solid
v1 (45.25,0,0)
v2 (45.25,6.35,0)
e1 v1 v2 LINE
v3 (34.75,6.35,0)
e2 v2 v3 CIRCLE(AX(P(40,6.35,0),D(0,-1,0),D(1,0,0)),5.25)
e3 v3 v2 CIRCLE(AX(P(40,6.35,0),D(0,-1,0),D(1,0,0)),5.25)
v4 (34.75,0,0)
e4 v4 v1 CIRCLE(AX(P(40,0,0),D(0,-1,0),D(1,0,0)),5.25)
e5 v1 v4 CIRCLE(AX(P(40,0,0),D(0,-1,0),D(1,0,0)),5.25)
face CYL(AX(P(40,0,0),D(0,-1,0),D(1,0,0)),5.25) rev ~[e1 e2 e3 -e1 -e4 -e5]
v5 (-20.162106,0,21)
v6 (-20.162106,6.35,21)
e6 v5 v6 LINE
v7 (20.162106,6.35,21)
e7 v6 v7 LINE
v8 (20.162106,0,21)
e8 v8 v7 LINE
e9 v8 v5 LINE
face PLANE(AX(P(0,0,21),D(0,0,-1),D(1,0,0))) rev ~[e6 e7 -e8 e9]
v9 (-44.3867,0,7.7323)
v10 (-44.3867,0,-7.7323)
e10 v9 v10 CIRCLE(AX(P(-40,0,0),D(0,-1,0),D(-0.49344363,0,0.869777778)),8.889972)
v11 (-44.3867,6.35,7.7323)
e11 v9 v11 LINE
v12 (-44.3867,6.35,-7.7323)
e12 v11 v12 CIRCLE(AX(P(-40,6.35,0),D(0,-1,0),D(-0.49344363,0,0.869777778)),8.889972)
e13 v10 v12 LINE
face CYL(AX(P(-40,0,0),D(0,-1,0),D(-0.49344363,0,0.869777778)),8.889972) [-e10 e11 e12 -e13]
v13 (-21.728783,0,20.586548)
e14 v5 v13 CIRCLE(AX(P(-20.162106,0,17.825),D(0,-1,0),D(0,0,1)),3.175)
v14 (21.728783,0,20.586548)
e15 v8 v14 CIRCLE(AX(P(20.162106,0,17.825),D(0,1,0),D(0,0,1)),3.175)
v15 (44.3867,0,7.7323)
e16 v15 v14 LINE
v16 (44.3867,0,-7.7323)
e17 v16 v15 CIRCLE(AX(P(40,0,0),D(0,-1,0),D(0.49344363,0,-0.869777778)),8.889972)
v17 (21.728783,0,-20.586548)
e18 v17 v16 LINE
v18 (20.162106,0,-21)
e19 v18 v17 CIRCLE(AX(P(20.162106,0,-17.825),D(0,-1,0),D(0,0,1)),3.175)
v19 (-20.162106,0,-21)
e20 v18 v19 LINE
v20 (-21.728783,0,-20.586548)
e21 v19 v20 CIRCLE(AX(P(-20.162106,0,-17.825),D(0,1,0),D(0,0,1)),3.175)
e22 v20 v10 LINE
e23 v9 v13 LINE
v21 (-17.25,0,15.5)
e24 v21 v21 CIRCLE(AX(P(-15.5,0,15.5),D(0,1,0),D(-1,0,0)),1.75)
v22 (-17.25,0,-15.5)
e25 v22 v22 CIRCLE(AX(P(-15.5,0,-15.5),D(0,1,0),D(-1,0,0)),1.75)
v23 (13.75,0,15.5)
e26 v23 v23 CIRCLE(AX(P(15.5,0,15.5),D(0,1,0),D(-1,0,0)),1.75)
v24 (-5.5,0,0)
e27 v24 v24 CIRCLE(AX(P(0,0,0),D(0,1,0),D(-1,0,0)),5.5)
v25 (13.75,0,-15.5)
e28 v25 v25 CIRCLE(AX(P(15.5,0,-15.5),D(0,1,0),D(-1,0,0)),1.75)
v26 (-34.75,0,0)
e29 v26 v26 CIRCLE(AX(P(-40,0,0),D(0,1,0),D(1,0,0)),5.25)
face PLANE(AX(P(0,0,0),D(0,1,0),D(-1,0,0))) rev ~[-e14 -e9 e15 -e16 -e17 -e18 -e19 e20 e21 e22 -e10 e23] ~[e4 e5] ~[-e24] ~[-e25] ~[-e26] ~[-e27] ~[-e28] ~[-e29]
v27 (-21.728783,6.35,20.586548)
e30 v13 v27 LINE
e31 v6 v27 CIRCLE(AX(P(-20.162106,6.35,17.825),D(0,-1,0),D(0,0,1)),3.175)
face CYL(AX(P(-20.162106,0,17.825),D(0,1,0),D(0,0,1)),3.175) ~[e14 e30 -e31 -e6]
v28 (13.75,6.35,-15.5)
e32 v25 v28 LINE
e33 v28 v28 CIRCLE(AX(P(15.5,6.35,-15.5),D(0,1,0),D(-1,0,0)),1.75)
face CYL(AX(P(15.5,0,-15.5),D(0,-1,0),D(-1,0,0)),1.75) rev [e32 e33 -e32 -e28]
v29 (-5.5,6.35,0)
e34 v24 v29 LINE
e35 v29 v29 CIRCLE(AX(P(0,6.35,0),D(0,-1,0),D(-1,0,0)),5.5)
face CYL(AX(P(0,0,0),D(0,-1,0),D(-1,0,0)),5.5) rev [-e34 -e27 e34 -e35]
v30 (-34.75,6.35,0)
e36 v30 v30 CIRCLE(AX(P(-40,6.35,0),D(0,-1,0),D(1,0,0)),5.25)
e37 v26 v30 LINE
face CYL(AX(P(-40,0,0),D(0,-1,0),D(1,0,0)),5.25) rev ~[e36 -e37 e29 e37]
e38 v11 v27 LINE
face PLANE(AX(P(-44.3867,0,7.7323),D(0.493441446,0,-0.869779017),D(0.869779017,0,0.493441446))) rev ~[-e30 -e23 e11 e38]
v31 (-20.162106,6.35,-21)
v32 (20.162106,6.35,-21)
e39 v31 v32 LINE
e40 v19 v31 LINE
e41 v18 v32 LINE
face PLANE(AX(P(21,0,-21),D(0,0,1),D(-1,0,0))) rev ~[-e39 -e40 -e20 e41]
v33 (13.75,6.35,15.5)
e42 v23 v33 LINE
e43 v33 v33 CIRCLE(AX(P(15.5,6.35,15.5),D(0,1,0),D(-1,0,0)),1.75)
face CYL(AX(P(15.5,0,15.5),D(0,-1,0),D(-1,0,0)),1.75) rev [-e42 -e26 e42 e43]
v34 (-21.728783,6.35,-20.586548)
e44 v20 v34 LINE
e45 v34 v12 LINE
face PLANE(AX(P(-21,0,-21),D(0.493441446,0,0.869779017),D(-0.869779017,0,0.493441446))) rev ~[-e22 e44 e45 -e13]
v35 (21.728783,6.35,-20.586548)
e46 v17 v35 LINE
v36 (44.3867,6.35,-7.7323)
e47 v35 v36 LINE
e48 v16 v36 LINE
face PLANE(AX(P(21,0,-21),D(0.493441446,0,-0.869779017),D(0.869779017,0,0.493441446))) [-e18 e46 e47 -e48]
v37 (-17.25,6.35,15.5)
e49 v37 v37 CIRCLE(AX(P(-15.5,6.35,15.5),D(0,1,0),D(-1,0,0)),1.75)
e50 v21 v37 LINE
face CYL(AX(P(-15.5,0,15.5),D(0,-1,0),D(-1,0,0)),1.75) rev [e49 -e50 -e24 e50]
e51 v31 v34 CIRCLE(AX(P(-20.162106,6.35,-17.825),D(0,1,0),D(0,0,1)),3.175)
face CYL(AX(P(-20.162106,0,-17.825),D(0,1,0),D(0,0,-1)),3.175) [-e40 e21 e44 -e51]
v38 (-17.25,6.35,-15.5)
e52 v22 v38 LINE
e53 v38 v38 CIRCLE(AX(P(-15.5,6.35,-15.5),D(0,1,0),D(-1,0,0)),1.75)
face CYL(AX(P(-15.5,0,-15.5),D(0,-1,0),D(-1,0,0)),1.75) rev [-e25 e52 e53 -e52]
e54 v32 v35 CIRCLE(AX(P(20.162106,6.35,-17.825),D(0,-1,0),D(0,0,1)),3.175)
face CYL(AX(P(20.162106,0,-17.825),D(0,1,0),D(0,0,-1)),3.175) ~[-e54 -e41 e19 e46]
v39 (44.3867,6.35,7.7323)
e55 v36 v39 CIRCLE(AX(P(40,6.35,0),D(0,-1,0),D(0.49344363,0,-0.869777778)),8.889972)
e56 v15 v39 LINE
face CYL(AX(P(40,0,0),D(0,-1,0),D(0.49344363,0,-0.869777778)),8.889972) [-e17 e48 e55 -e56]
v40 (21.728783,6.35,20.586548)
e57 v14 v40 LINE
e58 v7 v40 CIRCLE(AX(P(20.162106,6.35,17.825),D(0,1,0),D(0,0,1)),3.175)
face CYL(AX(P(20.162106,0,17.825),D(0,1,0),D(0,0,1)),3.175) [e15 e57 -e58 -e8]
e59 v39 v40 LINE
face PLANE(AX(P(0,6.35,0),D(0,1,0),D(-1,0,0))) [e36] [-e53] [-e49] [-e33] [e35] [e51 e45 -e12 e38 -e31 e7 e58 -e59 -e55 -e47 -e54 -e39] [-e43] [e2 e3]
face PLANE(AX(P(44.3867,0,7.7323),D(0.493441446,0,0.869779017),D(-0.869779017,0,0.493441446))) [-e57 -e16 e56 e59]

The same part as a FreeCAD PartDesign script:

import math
import FreeCAD as App
import Part
import Sketcher
from FreeCAD import Vector


def edges_at(feature, points):
    """Names of the edges that pass closest to the given points."""
    edges = feature.Shape.Edges
    near = lambda p: min(range(len(edges)), key=lambda i: edges[i].distToShape(Part.Vertex(*p))[0])
    return sorted({f"Edge{near(p) + 1}" for p in points})


def add_polygon(sketch, points):
    """Adds a closed chain of lines whose ends are joined by coincident constraints."""
    first, n = sketch.GeometryCount, len(points)
    for a, b in zip(points, points[1:] + points[:1]):
        sketch.addGeometry(Part.LineSegment(App.Vector(*a, 0), App.Vector(*b, 0)), False)
    for i in range(n):
        sketch.addConstraint(Sketcher.Constraint("Coincident", first + i, 2, first + (i + 1) % n, 1))

doc = App.newDocument("Part")
body = doc.addObject("PartDesign::Body", "Body")

sketch1 = body.newObject("Sketcher::SketchObject", "Sketch")
sketch1.AttachmentSupport = (doc.getObject("XZ_Plane"), [""])
sketch1.MapMode = "FlatFace"
add_polygon(sketch1, [(21, -21), (-21, -21), (-21, 21), (21, 21)])
sketch1.addGeometry(Part.Circle(Vector(0, 0, 0), Vector(0, 0, 1), 5.5), False)
sketch1.addGeometry(Part.Circle(Vector(15.5, -15.5, 0), Vector(0, 0, 1), 1.75), False)
sketch1.addGeometry(Part.Circle(Vector(15.5, 15.5, 0), Vector(0, 0, 1), 1.75), False)
sketch1.addGeometry(Part.Circle(Vector(-15.5, -15.5, 0), Vector(0, 0, 1), 1.75), False)
sketch1.addGeometry(Part.Circle(Vector(-15.5, 15.5, 0), Vector(0, 0, 1), 1.75), False)
sketch1.addConstraint([
    Sketcher.Constraint("Horizontal", 0),
    Sketcher.Constraint("Vertical", 1),
    Sketcher.Constraint("Horizontal", 2),
    Sketcher.Constraint("Vertical", 3),
    Sketcher.Constraint("Coincident", 4, 3, -1, 1),
    Sketcher.Constraint("Equal", 5, 6),
    Sketcher.Constraint("Equal", 6, 7),
    Sketcher.Constraint("Equal", 7, 8),
    Sketcher.Constraint("Symmetric", 6, 3, 7, 3, -1, 1),
    Sketcher.Constraint("Symmetric", 5, 3, 8, 3, -1, 1),
    Sketcher.Constraint("Symmetric", 0, 2, 2, 2, -1, 1),
    Sketcher.Constraint("Symmetric", 5, 3, 7, 3, -2),
    Sketcher.Constraint("Equal", 2, 1),
    Sketcher.Constraint("Diameter", 4, 11.0),
    Sketcher.Constraint("Diameter", 5, 3.5),
    Sketcher.Constraint("DistanceX", 0, 2, 0, 1, 42.0),
    Sketcher.Constraint("DistanceY", 5, 3, 6, 3, 31.0),
    Sketcher.Constraint("DistanceX", 7, 3, 5, 3, 31.0),
])
pad1 = body.newObject("PartDesign::Pad", "Pad")
pad1.Profile = sketch1
pad1.Length = 6.35
pad1.Reversed = True

sketch2 = body.newObject("Sketcher::SketchObject", "Sketch001")
sketch2.AttachmentSupport = (doc.getObject("XZ_Plane"), [""])
sketch2.MapMode = "FlatFace"
sketch2.addGeometry([
    Part.LineSegment(Vector(21, 21, 0), Vector(21, 0, 0)),
    Part.LineSegment(Vector(21, 0, 0), Vector(21, -21, 0)),
    Part.LineSegment(Vector(21, -21, 0), Vector(44.3867, -7.7323, 0)),
    Part.ArcOfCircle(Part.Circle(Vector(40, 0, 0), Vector(0, 0, 1), 8.889972), math.radians(-60.432826), math.radians(60.432826)),
    Part.LineSegment(Vector(44.3867, 7.7323, 0), Vector(21, 21, 0)),
    Part.Circle(Vector(40, 0, 0), Vector(0, 0, 1), 5.25),
    Part.LineSegment(Vector(-21, -21, 0), Vector(-21, 0, 0)),
    Part.LineSegment(Vector(-21, 0, 0), Vector(-21, 21, 0)),
    Part.LineSegment(Vector(-21, 21, 0), Vector(-44.3867, 7.7323, 0)),
    Part.ArcOfCircle(Part.Circle(Vector(-40, 0, 0), Vector(0, 0, 1), 8.889972), math.radians(119.567174), math.radians(240.432826)),
    Part.LineSegment(Vector(-44.3867, -7.7323, 0), Vector(-21, -21, 0)),
    Part.Circle(Vector(-40, 0, 0), Vector(0, 0, 1), 5.25),
], False)
sketch2.addConstraint([
    Sketcher.Constraint("Coincident", 0, 2, 1, 1),
    Sketcher.Constraint("Coincident", 1, 2, 2, 1),
    Sketcher.Constraint("Tangent", 2, 2, 3, 1),
    Sketcher.Constraint("Tangent", 3, 2, 4, 1),
    Sketcher.Constraint("Coincident", 4, 2, 0, 1),
    Sketcher.Constraint("Coincident", 6, 2, 7, 1),
    Sketcher.Constraint("Coincident", 7, 2, 8, 1),
    Sketcher.Constraint("Tangent", 8, 2, 9, 1),
    Sketcher.Constraint("Tangent", 9, 2, 10, 1),
    Sketcher.Constraint("Coincident", 10, 2, 6, 1),
    Sketcher.Constraint("Vertical", 0),
    Sketcher.Constraint("Vertical", 1),
    Sketcher.Constraint("Vertical", 6),
    Sketcher.Constraint("Vertical", 7),
    Sketcher.Constraint("Coincident", 5, 3, 3, 3),
    Sketcher.Constraint("Coincident", 11, 3, 9, 3),
    Sketcher.Constraint("Equal", 3, 9),
    Sketcher.Constraint("Equal", 5, 11),
    Sketcher.Constraint("Symmetric", 3, 3, 9, 3, -1, 1),
    Sketcher.Constraint("Symmetric", 0, 2, 6, 2, -1, 1),
    Sketcher.Constraint("Symmetric", 3, 2, 8, 2, -2),
    Sketcher.Constraint("PointOnObject", 0, 2, -1),
    Sketcher.Constraint("Parallel", 2, 8),
    Sketcher.Constraint("Parallel", 4, 10),
    Sketcher.Constraint("Diameter", 5, 10.5),
    Sketcher.Constraint("Radius", 3, 8.89),
    Sketcher.Constraint("DistanceX", 9, 3, 3, 3, 80.0),
    Sketcher.Constraint("DistanceY", 0, 2, 0, 1, 21.0),
    Sketcher.Constraint("DistanceX", -1, 1, 0, 2, 21.0),
])
pad2 = body.newObject("PartDesign::Pad", "Pad001")
pad2.Profile = sketch2
pad2.Length = 6.35
pad2.Reversed = True
doc.recompute()

fillet = body.newObject("PartDesign::Fillet", "Fillet")
fillet.Base = (pad2, edges_at(pad2, [
    (-21, 3.175, -21),
    (21, 3.175, -21),
    (21, 3.175, 21),
    (-21, 3.175, 21),
]))
fillet.Radius = 3.175

doc.recompute()
